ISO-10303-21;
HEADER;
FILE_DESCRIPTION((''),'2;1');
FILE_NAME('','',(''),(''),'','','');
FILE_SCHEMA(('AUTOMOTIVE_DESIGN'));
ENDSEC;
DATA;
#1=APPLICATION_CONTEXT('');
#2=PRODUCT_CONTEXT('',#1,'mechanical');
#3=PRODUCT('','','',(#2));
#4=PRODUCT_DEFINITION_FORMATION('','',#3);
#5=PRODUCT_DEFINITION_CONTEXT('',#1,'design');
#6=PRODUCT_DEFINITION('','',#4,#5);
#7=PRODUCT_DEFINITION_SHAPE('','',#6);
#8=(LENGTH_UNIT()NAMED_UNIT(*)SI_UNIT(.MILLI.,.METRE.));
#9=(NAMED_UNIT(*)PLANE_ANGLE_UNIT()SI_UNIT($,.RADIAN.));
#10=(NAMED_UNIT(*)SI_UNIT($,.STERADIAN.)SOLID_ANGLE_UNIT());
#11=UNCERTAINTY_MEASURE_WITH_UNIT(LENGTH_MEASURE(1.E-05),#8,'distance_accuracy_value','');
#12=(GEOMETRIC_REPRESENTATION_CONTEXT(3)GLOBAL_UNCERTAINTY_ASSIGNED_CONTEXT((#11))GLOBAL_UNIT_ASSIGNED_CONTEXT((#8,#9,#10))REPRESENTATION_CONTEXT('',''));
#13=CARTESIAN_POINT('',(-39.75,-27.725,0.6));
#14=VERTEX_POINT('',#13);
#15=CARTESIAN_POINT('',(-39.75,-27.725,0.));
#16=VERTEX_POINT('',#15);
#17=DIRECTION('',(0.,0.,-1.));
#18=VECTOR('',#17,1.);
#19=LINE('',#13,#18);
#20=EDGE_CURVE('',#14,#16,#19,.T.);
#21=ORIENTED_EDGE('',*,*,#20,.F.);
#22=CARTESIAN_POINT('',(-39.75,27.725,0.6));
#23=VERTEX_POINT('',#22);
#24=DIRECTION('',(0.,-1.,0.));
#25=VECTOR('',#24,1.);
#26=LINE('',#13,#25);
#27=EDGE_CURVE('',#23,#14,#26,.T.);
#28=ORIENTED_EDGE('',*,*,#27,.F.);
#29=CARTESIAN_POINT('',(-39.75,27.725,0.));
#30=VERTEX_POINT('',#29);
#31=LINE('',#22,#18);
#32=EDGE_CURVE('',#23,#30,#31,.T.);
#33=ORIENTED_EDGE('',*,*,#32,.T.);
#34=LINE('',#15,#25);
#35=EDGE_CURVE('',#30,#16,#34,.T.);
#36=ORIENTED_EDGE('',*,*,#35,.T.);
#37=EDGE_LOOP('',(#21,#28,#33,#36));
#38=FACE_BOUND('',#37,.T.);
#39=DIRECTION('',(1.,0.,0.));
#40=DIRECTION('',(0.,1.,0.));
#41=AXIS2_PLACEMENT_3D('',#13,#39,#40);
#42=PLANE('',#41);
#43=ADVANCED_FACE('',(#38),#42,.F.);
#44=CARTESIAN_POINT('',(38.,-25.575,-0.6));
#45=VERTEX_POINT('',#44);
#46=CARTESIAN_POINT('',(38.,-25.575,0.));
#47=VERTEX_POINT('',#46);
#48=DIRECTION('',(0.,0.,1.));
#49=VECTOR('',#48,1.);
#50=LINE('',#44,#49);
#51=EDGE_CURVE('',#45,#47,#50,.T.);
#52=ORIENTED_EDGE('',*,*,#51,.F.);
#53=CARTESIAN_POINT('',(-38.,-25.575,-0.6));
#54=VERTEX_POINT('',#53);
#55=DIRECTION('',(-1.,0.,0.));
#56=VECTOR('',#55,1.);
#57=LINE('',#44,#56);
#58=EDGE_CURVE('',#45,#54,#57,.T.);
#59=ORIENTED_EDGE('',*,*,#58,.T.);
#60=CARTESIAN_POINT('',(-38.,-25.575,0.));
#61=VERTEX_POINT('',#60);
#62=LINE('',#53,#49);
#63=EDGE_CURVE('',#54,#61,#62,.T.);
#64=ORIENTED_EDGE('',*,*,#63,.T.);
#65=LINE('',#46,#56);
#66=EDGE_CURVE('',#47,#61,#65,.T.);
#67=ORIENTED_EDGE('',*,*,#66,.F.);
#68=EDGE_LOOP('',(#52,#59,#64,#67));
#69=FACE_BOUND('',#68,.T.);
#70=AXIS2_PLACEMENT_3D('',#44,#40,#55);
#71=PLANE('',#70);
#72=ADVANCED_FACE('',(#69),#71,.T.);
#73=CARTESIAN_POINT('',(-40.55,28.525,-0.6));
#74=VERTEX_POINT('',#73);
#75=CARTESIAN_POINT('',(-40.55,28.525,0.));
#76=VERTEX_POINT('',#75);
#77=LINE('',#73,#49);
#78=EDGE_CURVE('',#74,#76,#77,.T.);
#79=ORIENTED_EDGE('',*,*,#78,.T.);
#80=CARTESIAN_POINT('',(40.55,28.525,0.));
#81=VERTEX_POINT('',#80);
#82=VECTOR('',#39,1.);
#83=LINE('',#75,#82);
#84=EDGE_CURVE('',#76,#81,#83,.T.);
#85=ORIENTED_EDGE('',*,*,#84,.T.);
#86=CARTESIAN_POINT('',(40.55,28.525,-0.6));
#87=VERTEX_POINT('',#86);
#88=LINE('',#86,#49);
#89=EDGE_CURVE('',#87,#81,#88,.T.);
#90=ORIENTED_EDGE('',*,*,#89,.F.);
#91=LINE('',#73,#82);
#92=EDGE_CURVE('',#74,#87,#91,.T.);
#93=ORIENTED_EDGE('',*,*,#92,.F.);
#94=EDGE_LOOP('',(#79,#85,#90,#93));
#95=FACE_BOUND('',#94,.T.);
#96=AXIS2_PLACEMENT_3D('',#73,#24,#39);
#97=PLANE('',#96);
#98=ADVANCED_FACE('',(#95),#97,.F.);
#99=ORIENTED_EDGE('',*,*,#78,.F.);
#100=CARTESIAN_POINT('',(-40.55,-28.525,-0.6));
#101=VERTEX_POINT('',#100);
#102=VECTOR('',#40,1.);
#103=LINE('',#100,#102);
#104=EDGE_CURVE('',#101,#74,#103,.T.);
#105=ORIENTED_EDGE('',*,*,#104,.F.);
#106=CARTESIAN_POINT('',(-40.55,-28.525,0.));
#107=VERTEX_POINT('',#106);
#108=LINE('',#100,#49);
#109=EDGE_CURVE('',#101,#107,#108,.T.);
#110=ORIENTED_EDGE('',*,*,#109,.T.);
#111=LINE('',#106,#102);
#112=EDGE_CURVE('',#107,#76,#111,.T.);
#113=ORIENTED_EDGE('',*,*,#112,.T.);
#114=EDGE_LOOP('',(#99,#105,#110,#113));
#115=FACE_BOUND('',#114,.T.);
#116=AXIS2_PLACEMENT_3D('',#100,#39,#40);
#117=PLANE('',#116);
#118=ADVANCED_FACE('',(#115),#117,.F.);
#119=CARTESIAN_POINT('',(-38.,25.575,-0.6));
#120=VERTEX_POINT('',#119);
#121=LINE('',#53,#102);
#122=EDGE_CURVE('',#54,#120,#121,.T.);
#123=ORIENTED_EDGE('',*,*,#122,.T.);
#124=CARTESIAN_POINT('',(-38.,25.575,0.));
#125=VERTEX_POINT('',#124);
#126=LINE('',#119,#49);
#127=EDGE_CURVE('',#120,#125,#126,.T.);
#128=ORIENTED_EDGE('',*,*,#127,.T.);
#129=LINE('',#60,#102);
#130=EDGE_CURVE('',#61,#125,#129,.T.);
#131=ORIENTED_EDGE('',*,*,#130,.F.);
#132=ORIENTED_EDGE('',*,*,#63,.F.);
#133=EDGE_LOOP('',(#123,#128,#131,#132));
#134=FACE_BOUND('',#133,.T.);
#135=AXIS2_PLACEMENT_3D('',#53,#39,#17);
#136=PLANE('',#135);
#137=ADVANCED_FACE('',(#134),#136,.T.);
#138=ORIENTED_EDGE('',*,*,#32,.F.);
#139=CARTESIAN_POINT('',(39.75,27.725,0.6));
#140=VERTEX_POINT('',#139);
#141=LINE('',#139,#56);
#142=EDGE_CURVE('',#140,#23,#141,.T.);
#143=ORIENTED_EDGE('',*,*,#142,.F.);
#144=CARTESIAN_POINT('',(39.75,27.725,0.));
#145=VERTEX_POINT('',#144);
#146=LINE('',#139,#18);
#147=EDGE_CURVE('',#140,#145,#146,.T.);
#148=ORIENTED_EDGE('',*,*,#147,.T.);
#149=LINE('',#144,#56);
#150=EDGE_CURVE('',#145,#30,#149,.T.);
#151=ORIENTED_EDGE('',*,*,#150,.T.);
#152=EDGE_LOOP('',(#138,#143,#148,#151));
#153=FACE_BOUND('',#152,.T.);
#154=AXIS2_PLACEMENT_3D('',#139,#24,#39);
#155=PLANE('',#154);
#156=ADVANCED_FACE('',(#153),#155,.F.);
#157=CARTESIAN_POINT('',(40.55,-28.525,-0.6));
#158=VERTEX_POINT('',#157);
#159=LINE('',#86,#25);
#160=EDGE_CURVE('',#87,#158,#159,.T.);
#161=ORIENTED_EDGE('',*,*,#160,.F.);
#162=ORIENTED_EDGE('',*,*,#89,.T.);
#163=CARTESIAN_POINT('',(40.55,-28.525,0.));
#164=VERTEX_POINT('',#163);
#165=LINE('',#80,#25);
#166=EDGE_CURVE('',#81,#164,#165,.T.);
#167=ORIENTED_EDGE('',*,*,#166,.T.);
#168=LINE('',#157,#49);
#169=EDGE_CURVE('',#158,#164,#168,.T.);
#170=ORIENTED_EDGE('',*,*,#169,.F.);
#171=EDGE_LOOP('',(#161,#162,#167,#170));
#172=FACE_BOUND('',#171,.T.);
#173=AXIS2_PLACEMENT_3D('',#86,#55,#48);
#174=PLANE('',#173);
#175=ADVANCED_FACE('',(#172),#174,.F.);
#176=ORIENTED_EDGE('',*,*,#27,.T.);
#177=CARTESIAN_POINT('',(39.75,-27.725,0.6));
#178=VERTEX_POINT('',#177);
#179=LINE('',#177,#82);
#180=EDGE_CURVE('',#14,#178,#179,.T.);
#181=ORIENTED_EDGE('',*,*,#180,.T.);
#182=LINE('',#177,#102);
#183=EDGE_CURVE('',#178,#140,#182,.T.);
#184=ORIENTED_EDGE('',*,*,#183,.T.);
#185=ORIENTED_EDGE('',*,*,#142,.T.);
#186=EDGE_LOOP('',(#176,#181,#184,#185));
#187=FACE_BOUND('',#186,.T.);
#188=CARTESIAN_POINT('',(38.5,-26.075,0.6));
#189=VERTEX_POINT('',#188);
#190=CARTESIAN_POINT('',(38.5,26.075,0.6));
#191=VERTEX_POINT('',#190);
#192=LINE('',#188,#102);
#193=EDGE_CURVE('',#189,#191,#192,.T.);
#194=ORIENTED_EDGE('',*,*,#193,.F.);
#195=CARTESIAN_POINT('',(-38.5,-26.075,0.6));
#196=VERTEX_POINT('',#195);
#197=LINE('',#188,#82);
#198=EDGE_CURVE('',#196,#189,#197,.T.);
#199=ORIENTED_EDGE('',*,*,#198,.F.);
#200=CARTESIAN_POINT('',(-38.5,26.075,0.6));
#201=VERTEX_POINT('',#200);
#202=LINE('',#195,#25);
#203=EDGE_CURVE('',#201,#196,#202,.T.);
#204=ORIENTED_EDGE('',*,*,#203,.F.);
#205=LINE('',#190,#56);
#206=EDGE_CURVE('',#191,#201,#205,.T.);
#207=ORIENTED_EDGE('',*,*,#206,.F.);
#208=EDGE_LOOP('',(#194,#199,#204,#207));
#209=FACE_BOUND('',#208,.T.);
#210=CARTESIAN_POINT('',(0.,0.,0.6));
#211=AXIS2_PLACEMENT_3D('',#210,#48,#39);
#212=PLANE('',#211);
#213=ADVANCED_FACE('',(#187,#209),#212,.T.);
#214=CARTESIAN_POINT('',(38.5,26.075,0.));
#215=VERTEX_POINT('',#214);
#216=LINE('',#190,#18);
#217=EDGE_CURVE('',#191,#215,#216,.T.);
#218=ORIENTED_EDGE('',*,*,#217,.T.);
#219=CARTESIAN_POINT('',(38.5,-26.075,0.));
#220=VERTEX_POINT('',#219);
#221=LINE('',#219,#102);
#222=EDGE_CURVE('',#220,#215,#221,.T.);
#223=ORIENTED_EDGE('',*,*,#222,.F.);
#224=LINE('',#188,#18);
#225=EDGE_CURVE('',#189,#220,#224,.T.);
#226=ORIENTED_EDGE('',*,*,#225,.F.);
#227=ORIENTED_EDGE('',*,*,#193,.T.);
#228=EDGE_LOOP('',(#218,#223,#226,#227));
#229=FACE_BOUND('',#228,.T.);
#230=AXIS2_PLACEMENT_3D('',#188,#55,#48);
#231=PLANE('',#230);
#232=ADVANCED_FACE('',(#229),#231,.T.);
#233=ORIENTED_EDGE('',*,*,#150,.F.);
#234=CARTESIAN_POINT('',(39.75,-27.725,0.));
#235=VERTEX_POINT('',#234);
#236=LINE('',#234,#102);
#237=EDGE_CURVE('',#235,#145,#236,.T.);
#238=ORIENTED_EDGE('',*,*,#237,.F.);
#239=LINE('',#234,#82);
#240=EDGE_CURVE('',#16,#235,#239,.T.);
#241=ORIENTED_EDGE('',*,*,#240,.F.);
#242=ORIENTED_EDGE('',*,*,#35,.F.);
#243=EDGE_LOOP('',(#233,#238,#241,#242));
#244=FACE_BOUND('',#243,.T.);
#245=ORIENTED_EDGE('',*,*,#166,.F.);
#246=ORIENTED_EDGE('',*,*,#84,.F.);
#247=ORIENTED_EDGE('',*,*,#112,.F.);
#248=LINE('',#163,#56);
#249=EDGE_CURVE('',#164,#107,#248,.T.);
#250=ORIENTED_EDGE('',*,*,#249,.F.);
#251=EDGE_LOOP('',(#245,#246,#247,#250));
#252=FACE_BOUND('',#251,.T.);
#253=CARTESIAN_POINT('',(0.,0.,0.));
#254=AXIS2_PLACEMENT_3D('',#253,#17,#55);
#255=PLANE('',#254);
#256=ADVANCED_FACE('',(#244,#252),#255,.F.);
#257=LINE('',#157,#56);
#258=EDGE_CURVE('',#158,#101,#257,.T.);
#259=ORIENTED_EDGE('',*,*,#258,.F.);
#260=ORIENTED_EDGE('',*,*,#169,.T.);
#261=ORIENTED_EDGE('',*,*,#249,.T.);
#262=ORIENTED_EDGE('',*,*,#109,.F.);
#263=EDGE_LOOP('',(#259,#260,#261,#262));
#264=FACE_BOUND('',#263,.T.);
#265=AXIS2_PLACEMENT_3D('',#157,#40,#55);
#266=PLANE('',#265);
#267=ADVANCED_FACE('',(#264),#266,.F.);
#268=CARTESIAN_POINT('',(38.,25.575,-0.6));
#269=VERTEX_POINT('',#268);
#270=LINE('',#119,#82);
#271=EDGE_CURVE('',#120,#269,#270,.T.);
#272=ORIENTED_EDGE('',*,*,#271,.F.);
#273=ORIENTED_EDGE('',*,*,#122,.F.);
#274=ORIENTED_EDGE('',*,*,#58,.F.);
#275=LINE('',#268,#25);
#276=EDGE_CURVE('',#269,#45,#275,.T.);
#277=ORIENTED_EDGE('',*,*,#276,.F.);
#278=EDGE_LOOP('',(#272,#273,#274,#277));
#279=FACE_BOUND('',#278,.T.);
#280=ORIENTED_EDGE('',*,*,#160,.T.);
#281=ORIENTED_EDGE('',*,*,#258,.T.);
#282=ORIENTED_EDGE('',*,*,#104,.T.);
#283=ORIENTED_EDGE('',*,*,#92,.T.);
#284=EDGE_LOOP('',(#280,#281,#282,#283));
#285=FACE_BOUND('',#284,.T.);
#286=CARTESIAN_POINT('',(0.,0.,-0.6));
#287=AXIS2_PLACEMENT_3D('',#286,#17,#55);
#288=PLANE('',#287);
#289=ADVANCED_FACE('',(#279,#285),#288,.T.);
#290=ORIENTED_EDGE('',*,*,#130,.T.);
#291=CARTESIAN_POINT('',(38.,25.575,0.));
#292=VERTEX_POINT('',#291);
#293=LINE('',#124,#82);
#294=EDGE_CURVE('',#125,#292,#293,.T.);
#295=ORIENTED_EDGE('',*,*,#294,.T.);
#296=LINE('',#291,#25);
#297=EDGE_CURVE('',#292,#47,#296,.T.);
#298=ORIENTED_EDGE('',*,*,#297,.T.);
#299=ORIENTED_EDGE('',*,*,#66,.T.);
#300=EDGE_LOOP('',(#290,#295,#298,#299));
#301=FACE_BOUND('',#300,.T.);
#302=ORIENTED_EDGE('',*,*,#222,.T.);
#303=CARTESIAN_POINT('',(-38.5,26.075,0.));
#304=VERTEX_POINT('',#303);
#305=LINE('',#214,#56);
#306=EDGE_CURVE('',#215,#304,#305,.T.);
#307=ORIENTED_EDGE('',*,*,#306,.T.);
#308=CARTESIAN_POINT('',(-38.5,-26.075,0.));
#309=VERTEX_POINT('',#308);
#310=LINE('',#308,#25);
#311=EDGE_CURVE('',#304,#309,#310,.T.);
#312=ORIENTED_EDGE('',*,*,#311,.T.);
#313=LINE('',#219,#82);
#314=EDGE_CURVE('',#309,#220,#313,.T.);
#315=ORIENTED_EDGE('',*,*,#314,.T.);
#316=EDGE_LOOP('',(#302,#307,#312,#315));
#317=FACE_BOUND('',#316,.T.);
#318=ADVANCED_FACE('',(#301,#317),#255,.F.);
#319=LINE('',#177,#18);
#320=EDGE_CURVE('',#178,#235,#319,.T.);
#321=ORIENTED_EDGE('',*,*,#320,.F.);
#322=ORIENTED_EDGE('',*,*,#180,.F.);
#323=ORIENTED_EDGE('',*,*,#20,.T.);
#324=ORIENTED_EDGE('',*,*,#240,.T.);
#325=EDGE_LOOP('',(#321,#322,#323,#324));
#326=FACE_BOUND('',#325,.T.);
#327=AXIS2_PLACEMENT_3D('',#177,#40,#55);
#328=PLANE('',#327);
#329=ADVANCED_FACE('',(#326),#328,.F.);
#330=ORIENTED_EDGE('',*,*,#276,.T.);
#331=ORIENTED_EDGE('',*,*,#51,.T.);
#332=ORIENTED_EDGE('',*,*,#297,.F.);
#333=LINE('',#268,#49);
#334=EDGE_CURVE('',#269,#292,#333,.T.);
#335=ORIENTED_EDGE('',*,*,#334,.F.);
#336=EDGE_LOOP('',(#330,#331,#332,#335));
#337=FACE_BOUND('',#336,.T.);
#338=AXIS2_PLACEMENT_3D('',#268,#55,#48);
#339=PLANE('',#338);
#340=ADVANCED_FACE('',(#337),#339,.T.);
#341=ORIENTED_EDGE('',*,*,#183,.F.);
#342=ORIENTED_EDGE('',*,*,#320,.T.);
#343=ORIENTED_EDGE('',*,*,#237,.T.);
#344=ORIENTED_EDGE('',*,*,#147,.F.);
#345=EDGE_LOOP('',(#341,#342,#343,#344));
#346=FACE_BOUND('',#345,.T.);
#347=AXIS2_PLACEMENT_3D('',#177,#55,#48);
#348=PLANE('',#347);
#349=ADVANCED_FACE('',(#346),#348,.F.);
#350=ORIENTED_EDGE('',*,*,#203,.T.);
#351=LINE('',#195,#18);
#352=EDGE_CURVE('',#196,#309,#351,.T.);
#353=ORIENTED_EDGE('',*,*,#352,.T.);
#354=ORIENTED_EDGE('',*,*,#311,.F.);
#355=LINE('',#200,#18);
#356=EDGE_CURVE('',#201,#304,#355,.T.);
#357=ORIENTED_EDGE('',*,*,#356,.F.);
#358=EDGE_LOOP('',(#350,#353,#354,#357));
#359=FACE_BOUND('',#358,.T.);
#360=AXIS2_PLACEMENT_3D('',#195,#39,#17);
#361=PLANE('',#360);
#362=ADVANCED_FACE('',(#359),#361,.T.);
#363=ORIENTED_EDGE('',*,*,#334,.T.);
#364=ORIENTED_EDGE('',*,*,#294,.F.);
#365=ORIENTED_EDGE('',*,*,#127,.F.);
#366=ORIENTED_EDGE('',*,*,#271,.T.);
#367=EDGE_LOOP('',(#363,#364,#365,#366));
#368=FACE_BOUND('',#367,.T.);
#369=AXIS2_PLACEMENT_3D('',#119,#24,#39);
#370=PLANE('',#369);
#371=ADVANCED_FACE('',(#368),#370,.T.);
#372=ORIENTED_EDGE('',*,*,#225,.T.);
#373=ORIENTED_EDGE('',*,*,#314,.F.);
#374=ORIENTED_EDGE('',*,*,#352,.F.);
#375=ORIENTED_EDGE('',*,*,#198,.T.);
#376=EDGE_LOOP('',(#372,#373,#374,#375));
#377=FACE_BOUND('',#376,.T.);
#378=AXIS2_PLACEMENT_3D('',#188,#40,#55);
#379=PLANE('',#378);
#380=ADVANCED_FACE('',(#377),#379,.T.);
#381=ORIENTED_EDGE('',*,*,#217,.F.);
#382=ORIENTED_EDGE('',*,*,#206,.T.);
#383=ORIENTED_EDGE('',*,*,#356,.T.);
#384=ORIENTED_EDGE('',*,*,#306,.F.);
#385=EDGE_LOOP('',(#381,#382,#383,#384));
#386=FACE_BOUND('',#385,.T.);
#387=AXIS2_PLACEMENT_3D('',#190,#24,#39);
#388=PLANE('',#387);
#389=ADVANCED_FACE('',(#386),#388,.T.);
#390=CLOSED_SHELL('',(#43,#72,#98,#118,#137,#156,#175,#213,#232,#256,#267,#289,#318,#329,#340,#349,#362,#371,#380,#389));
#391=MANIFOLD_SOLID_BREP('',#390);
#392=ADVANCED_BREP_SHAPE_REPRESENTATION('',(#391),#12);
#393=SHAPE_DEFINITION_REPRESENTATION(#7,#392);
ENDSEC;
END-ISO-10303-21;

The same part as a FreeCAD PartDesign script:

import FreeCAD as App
import Part
import Sketcher
from FreeCAD import Vector
Q = App.Units.Quantity


def add_polygon(sketch, points):
    """Adds a closed chain of lines whose ends are joined by coincident constraints."""
    first, n = sketch.GeometryCount, len(points)
    for a, b in zip(points, points[1:] + points[:1]):
        sketch.addGeometry(Part.LineSegment(App.Vector(*a, 0), App.Vector(*b, 0)), False)
    for i in range(n):
        sketch.addConstraint(Sketcher.Constraint("Coincident", first + i, 2, first + (i + 1) % n, 1))

doc = App.newDocument("Part")
params = doc.addObject("Spreadsheet::Sheet", "Params")
for row, (alias, value) in enumerate([
    ("sketch1_width", "77 mm"),
    ("sketch1_width2", "79.5 mm"),
    ("sketch1_height", "55.45 mm"),
    ("sketch1_height2", "52.15 mm"),
    ("pad1_length", "0.6 mm"),
    ("sketch2_width", "76 mm"),
    ("sketch2_width2", "81.1 mm"),
    ("sketch2_height", "57.05 mm"),
    ("sketch2_height2", "51.15 mm"),
    ("pad2_length", "0.6 mm"),
], start=1):
    params.set(f"A{row}", alias)
    params.set(f"B{row}", "=" + value)
    params.setAlias(f"B{row}", alias)

body = doc.addObject("PartDesign::Body", "Body")

sketch1 = doc.addObject("Sketcher::SketchObject", "Sketch")
body.addObject(sketch1)
sketch1.AttachmentSupport = (doc.XY_Plane, [""])
sketch1.MapMode = "FlatFace"
add_polygon(sketch1, [(-39.75, 27.725), (-39.75, -27.725), (39.75, -27.725), (39.75, 27.725)])
add_polygon(sketch1, [(38.5, -26.075), (-38.5, -26.075), (-38.5, 26.075), (38.5, 26.075)])
sketch1.addConstraint([
    Sketcher.Constraint("Vertical", 0),
    Sketcher.Constraint("Horizontal", 1),
    Sketcher.Constraint("Vertical", 2),
    Sketcher.Constraint("Horizontal", 3),
    Sketcher.Constraint("Horizontal", 4),
    Sketcher.Constraint("Vertical", 5),
    Sketcher.Constraint("Horizontal", 6),
    Sketcher.Constraint("Vertical", 7),
    Sketcher.Constraint("Symmetric", 0, 2, 2, 2, -1, 1),
    Sketcher.Constraint("Symmetric", 4, 2, 6, 2, -1, 1),
    Sketcher.Constraint("DistanceX", 4, 2, 4, 1, Q("77 mm")),
    Sketcher.Constraint("DistanceX", 1, 1, 1, 2, Q("79.5 mm")),
    Sketcher.Constraint("DistanceY", 0, 2, 0, 1, Q("55.45 mm")),
    Sketcher.Constraint("DistanceY", 5, 1, 5, 2, Q("52.15 mm")),
])
sketch1.setExpression("Constraints[18]", "Params.sketch1_width")
sketch1.setExpression("Constraints[19]", "Params.sketch1_width2")
sketch1.setExpression("Constraints[20]", "Params.sketch1_height")
sketch1.setExpression("Constraints[21]", "Params.sketch1_height2")
pad1 = doc.addObject("PartDesign::Pad", "Pad")
body.addObject(pad1)
pad1.Profile = sketch1
pad1.setExpression("Length", "Params.pad1_length")

sketch2 = doc.addObject("Sketcher::SketchObject", "Sketch001")
body.addObject(sketch2)
sketch2.AttachmentSupport = (doc.XY_Plane, [""])
sketch2.MapMode = "FlatFace"
add_polygon(sketch2, [(40.55, 28.525), (40.55, -28.525), (-40.55, -28.525), (-40.55, 28.525)])
add_polygon(sketch2, [(-38, -25.575), (38, -25.575), (38, 25.575), (-38, 25.575)])
sketch2.addConstraint([
    Sketcher.Constraint("Vertical", 0),
    Sketcher.Constraint("Horizontal", 1),
    Sketcher.Constraint("Vertical", 2),
    Sketcher.Constraint("Horizontal", 3),
    Sketcher.Constraint("Horizontal", 4),
    Sketcher.Constraint("Vertical", 5),
    Sketcher.Constraint("Horizontal", 6),
    Sketcher.Constraint("Vertical", 7),
    Sketcher.Constraint("Symmetric", 0, 2, 2, 2, -1, 1),
    Sketcher.Constraint("Symmetric", 4, 2, 6, 2, -1, 1),
    Sketcher.Constraint("DistanceX", 4, 1, 4, 2, Q("76 mm")),
    Sketcher.Constraint("DistanceX", 1, 2, 1, 1, Q("81.1 mm")),
    Sketcher.Constraint("DistanceY", 0, 2, 0, 1, Q("57.05 mm")),
    Sketcher.Constraint("DistanceY", 5, 1, 5, 2, Q("51.15 mm")),
])
sketch2.setExpression("Constraints[18]", "Params.sketch2_width")
sketch2.setExpression("Constraints[19]", "Params.sketch2_width2")
sketch2.setExpression("Constraints[20]", "Params.sketch2_height")
sketch2.setExpression("Constraints[21]", "Params.sketch2_height2")
pad2 = doc.addObject("PartDesign::Pad", "Pad001")
body.addObject(pad2)
pad2.Profile = sketch2
pad2.setExpression("Length", "Params.pad2_length")
pad2.Reversed = True

doc.recompute()
